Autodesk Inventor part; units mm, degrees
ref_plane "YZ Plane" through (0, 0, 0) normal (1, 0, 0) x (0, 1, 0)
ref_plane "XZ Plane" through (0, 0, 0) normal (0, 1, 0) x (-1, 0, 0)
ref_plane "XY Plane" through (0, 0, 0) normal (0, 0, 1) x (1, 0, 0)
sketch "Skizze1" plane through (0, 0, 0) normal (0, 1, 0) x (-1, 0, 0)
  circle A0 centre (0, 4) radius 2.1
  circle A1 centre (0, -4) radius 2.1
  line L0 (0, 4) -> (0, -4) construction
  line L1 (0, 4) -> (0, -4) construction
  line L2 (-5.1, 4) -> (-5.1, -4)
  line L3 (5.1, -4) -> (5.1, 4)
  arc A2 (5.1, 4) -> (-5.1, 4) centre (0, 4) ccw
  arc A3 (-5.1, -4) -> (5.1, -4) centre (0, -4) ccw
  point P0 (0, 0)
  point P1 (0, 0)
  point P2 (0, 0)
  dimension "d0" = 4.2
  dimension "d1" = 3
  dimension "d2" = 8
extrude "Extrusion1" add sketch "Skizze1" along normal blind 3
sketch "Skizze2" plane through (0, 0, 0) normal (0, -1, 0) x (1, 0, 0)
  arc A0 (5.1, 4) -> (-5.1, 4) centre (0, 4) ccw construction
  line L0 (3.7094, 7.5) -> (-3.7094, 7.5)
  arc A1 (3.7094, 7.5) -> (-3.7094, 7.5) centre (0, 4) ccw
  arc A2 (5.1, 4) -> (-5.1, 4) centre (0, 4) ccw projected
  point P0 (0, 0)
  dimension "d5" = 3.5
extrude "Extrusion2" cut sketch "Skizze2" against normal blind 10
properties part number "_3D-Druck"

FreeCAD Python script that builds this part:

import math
import FreeCAD as App
import Part
import Sketcher
from FreeCAD import Vector

doc = App.newDocument("Part")
body = doc.addObject("PartDesign::Body", "Body")

# Sketch on XZ plane
sketch1 = body.newObject("Sketcher::SketchObject", "Sketch")
sketch1.AttachmentSupport = (doc.getObject("XZ_Plane"), [""])
sketch1.MapMode = "FlatFace"
sketch1.addGeometry([
    Part.ArcOfCircle(Part.Circle(Vector(0, 4, 0), Vector(0, 0, 1), 5.1), math.radians(0), math.radians(180)),  # 0
    Part.LineSegment(Vector(5.1, 4, 0), Vector(5.1, -4, 0)),  # 1
    Part.ArcOfCircle(Part.Circle(Vector(0, -4, 0), Vector(0, 0, 1), 5.1), math.radians(180), math.radians(360)),  # 2
    Part.LineSegment(Vector(-5.1, -4, 0), Vector(-5.1, 4, 0)),  # 3
    Part.Circle(Vector(0, -4, 0), Vector(0, 0, 1), 2.1),  # 4
    Part.Circle(Vector(0, 4, 0), Vector(0, 0, 1), 2.1),  # 5
], False)
sketch1.addConstraint([
    Sketcher.Constraint("Tangent", 0, 1, 1, 1),
    Sketcher.Constraint("Tangent", 1, 2, 2, 2),
    Sketcher.Constraint("Tangent", 2, 1, 3, 1),
    Sketcher.Constraint("Tangent", 3, 2, 0, 2),
    Sketcher.Constraint("Vertical", 1),
    Sketcher.Constraint("Vertical", 3),
    Sketcher.Constraint("Coincident", 4, 3, 2, 3),
    Sketcher.Constraint("Coincident", 5, 3, 0, 3),
    Sketcher.Constraint("Equal", 4, 5),
    Sketcher.Constraint("Symmetric", 0, 3, 2, 3, -1, 1),
    Sketcher.Constraint("Diameter", 4, 4.2),
    Sketcher.Constraint("DistanceY", 1, 2, 1, 1, 8.0),
    Sketcher.Constraint("Radius", 0, 5.1),
])
pad1 = body.newObject("PartDesign::Pad", "Pad")
pad1.Profile = sketch1
pad1.Length = 3
pad1.Reversed = True

# Sketch on XZ plane
sketch2 = body.newObject("Sketcher::SketchObject", "Sketch001")
sketch2.AttachmentSupport = (doc.getObject("XZ_Plane"), [""])
sketch2.MapMode = "FlatFace"
sketch2.addGeometry([
    Part.LineSegment(Vector(-4, 8, 0), Vector(4, 8, 0)),
    Part.ArcOfCircle(Part.Circle(Vector(0, 4, 0), Vector(0, 0, 1), 5), math.radians(43), math.radians(137)),
], False)
sketch2.addConstraint([
    Sketcher.Constraint("Coincident", 0, 1, 1, 2),
    Sketcher.Constraint("Coincident", 1, 1, 0, 2),
    Sketcher.Constraint("Horizontal", 0),
    Sketcher.Constraint("PointOnObject", 1, 3, -2),
    Sketcher.Constraint("Radius", 1, 5.1),
    Sketcher.Constraint("DistanceY", 1, 3, 0, 1, 3.5),
    Sketcher.Constraint("DistanceY", -1, 1, 1, 3, 4.0),
])
pocket1 = body.newObject("PartDesign::Pocket", "Pocket")
pocket1.Profile = sketch2
pocket1.Length = 10

doc.recompute()
